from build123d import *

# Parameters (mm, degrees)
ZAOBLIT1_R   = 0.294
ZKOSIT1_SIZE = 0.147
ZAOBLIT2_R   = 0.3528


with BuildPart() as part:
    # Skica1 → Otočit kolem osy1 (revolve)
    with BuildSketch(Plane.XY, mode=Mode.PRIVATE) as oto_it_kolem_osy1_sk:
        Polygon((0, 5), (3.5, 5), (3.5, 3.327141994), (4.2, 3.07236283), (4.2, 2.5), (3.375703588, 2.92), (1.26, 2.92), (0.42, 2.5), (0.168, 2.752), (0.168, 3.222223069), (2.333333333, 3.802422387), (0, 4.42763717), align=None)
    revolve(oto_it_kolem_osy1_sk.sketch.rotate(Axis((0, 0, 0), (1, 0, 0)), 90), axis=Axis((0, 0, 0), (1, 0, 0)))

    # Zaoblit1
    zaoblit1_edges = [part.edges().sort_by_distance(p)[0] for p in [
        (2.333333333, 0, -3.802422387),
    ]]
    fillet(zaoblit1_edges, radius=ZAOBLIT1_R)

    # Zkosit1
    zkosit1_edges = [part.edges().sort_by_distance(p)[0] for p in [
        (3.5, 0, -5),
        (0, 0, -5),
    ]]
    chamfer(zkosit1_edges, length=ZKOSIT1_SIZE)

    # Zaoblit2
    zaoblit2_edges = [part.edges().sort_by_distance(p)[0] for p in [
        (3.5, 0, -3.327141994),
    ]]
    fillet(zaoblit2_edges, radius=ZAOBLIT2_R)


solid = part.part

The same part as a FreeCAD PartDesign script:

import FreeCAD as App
import Part
import Sketcher
from FreeCAD import Vector
Q = App.Units.Quantity


def edges_at(feature, points):
    """Names of the edges that pass closest to the given points."""
    edges = feature.Shape.Edges
    near = lambda p: min(range(len(edges)), key=lambda i: edges[i].distToShape(Part.Vertex(*p))[0])
    return sorted({f"Edge{near(p) + 1}" for p in points})


def add_polygon(sketch, points):
    """Adds a closed chain of lines whose ends are joined by coincident constraints."""
    first, n = sketch.GeometryCount, len(points)
    for a, b in zip(points, points[1:] + points[:1]):
        sketch.addGeometry(Part.LineSegment(App.Vector(*a, 0), App.Vector(*b, 0)), False)
    for i in range(n):
        sketch.addConstraint(Sketcher.Constraint("Coincident", first + i, 2, first + (i + 1) % n, 1))

doc = App.newDocument("Part")
body = doc.addObject("PartDesign::Body", "Body")

sketch1 = body.newObject("Sketcher::SketchObject", "Sketch")
sketch1.AttachmentSupport = (doc.getObject("XY_Plane"), [""])
sketch1.MapMode = "FlatFace"
add_polygon(sketch1, [(3.5, 5), (0, 5), (0, 4.43), (2.33, 3.8), (0.17, 3.22), (0.17, 2.75), (0.42, 2.5), (1.26, 2.92), (3.38, 2.92), (4.2, 2.5), (4.2, 3.07), (3.5, 3.33)])
sketch1.addConstraint(Sketcher.Constraint("Horizontal", 0))
sketch1.addConstraint(Sketcher.Constraint("Vertical", 1))
sketch1.addConstraint(Sketcher.Constraint("Vertical", 4))
sketch1.addConstraint(Sketcher.Constraint("Horizontal", 7))
sketch1.addConstraint(Sketcher.Constraint("Vertical", 9))
sketch1.addConstraint(Sketcher.Constraint("Vertical", 11))
sketch1.addConstraint(Sketcher.Constraint("PointOnObject", 0, 2, -2))
sketch1.addConstraint(Sketcher.Constraint("Horizontal", 5, 2, 8, 2))
sketch1.addConstraint(Sketcher.Constraint("Equal", 1, 9))
sketch1.addConstraint(Sketcher.Constraint("Angle", 2, Q("-15 deg")))
sketch1.addConstraint(Sketcher.Constraint("Angle", 3, Q("-165 deg")))
sketch1.addConstraint(Sketcher.Constraint("Angle", 5, Q("-45 deg")))
sketch1.addConstraint(Sketcher.Constraint("Angle", 8, Q("-27 deg")))
sketch1.addConstraint(Sketcher.Constraint("Angle", 10, Q("160 deg")))
sketch1.addConstraint(Sketcher.Constraint("DistanceX", 0, 2, 0, 1, Q("3.5 mm")))
sketch1.addConstraint(Sketcher.Constraint("DistanceY", -1, 1, 0, 2, Q("5 mm")))
sketch1.addConstraint(Sketcher.Constraint("DistanceY", -1, 1, 5, 2, Q("2.5 mm")))
sketch1.addConstraint(Sketcher.Constraint("DistanceX", -1, 1, 8, 2, Q("4.2 mm")))
sketch1.addConstraint(Sketcher.Constraint("DistanceX", -1, 1, 5, 2, Q("0.42 mm")))
sketch1.addConstraint(Sketcher.Constraint("DistanceX", -1, 1, 6, 2, Q("1.26 mm")))
sketch1.addConstraint(Sketcher.Constraint("DistanceY", -1, 1, 6, 2, Q("2.92 mm")))
sketch1.addConstraint(Sketcher.Constraint("DistanceX", -1, 1, 3, 2, Q("0.168 mm")))
sketch1.addConstraint(Sketcher.Constraint("DistanceY", 11, 1, 11, 2, Q("1.672858 mm")))
sketch1.addConstraint(Sketcher.Constraint("DistanceY", 3, 2, 2, 2, Q("0.580199 mm")))
revolution = body.newObject("PartDesign::Revolution", "Revolution")
revolution.Profile = sketch1
revolution.ReferenceAxis = (sketch1, ["H_Axis"])
revolution.Angle = 360
doc.recompute()

fillet = body.newObject("PartDesign::Fillet", "Fillet")
fillet.Base = (revolution, edges_at(revolution, [(2.333, 0, -3.802)]))
fillet.Radius = 0.294
doc.recompute()

chamfer = body.newObject("PartDesign::Chamfer", "Chamfer")
chamfer.Base = (fillet, edges_at(fillet, [(3.5, 0, -5), (0, 0, -5)]))
chamfer.Size = 0.147
doc.recompute()

fillet2 = body.newObject("PartDesign::Fillet", "Fillet001")
fillet2.Base = (chamfer, edges_at(chamfer, [(3.5, 0, -3.327)]))
fillet2.Radius = 0.3528

doc.recompute()
